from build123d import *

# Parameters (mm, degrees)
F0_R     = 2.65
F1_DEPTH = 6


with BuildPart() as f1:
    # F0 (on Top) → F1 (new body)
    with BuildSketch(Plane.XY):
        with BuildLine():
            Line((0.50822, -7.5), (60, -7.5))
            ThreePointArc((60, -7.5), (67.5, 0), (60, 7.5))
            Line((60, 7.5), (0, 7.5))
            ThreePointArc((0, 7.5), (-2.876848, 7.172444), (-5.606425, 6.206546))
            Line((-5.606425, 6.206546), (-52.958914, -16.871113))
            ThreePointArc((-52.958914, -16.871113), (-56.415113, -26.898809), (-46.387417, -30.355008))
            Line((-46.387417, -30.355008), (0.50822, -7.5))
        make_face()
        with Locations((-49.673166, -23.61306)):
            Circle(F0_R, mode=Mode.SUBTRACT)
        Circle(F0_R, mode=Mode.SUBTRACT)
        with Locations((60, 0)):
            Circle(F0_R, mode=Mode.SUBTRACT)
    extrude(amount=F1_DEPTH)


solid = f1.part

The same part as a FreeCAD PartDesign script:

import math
import FreeCAD as App
import Part
import Sketcher

doc = App.newDocument("Part")
body = doc.addObject("PartDesign::Body", "Body")

sketch1 = body.newObject("Sketcher::SketchObject", "Sketch")
sketch1.AttachmentSupport = (doc.getObject("XY_Plane"), [""])
sketch1.MapMode = "FlatFace"
sketch1.addGeometry(Part.LineSegment(App.Vector(0.50822, -7.5, 0), App.Vector(60, -7.5, 0)), False)
sketch1.addGeometry(Part.ArcOfCircle(Part.Circle(App.Vector(60, 0, 0), App.Vector(0, 0, 1), 7.5), math.radians(-90), math.radians(90)), False)
sketch1.addGeometry(Part.LineSegment(App.Vector(60, 7.5, 0), App.Vector(0, 7.5, 0)), False)
sketch1.addGeometry(Part.ArcOfCircle(Part.Circle(App.Vector(0.000004, -5.297159, 0), App.Vector(0, 0, 1), 12.797159), math.radians(90.00002), math.radians(115.982686)), False)
sketch1.addGeometry(Part.LineSegment(App.Vector(-5.606425, 6.206546, 0), App.Vector(-52.958914, -16.871113, 0)), False)
sketch1.addGeometry(Part.ArcOfCircle(Part.Circle(App.Vector(-49.673166, -23.61306, 0), App.Vector(0, 0, 1), 7.5), math.radians(115.982704), math.radians(295.982704)), False)
sketch1.addGeometry(Part.LineSegment(App.Vector(-46.387417, -30.355008, 0), App.Vector(0.50822, -7.5, 0)), False)
sketch1.addGeometry(Part.Circle(App.Vector(-49.673166, -23.61306, 0), App.Vector(0, 0, 1), 2.65), False)
sketch1.addGeometry(Part.Circle(App.Vector(0, 0, 0), App.Vector(0, 0, 1), 2.65), False)
sketch1.addGeometry(Part.Circle(App.Vector(60, 0, 0), App.Vector(0, 0, 1), 2.65), False)
sketch1.addConstraint(Sketcher.Constraint("Coincident", 0, 2, 1, 1))
sketch1.addConstraint(Sketcher.Constraint("Coincident", 1, 2, 2, 1))
sketch1.addConstraint(Sketcher.Constraint("Coincident", 2, 2, 3, 1))
sketch1.addConstraint(Sketcher.Constraint("Coincident", 3, 2, 4, 1))
sketch1.addConstraint(Sketcher.Constraint("Coincident", 4, 2, 5, 1))
sketch1.addConstraint(Sketcher.Constraint("Coincident", 5, 2, 6, 1))
sketch1.addConstraint(Sketcher.Constraint("Coincident", 6, 2, 0, 1))
sketch1.addConstraint(Sketcher.Constraint("Horizontal", 0))
sketch1.addConstraint(Sketcher.Constraint("Horizontal", 2))
sketch1.addConstraint(Sketcher.Constraint("Coincident", 8, 3, -1, 1))
sketch1.addConstraint(Sketcher.Constraint("Coincident", 7, 3, 5, 3))
sketch1.addConstraint(Sketcher.Constraint("Coincident", 9, 3, 1, 3))
sketch1.addConstraint(Sketcher.Constraint("PointOnObject", 1, 3, -1))
sketch1.addConstraint(Sketcher.Constraint("PointOnObject", 2, 2, -2))
sketch1.addConstraint(Sketcher.Constraint("Diameter", 7, 5.3))
sketch1.addConstraint(Sketcher.Constraint("Diameter", 8, 5.3))
sketch1.addConstraint(Sketcher.Constraint("Diameter", 9, 5.3))
sketch1.addConstraint(Sketcher.Constraint("Radius", 1, 7.5))
sketch1.addConstraint(Sketcher.Constraint("Radius", 5, 7.5))
sketch1.addConstraint(Sketcher.Constraint("DistanceX", 2, 2, 2, 1, 60.0))
sketch1.addConstraint(Sketcher.Constraint("DistanceX", -1, 1, 1, 3, 60.0))
sketch1.addConstraint(Sketcher.Constraint("DistanceX", -1, 1, 0, 2, 60.0))
sketch1.addConstraint(Sketcher.Constraint("Radius", 3, 12.797159))
sketch1.addConstraint(Sketcher.Constraint("DistanceX", 0, 1, 0, 2, 59.49178))
sketch1.addConstraint(Sketcher.Constraint("DistanceY", 5, 3, 3, 3, 18.315901))
sketch1.addConstraint(Sketcher.Constraint("DistanceX", 5, 3, 3, 3, 49.67317))
sketch1.addConstraint(Sketcher.Constraint("DistanceX", 3, 2, 3, 3, 5.606429))
sketch1.addConstraint(Sketcher.Constraint("DistanceX", 4, 2, 5, 3, 3.285748))
sketch1.addConstraint(Sketcher.Constraint("DistanceX", 5, 3, 5, 2, 3.285748))
sketch1.addConstraint(Sketcher.Constraint("Distance", 6, 52.168498))
pad1 = body.newObject("PartDesign::Pad", "Pad")
pad1.Profile = sketch1
pad1.Length = 6

doc.recompute()
